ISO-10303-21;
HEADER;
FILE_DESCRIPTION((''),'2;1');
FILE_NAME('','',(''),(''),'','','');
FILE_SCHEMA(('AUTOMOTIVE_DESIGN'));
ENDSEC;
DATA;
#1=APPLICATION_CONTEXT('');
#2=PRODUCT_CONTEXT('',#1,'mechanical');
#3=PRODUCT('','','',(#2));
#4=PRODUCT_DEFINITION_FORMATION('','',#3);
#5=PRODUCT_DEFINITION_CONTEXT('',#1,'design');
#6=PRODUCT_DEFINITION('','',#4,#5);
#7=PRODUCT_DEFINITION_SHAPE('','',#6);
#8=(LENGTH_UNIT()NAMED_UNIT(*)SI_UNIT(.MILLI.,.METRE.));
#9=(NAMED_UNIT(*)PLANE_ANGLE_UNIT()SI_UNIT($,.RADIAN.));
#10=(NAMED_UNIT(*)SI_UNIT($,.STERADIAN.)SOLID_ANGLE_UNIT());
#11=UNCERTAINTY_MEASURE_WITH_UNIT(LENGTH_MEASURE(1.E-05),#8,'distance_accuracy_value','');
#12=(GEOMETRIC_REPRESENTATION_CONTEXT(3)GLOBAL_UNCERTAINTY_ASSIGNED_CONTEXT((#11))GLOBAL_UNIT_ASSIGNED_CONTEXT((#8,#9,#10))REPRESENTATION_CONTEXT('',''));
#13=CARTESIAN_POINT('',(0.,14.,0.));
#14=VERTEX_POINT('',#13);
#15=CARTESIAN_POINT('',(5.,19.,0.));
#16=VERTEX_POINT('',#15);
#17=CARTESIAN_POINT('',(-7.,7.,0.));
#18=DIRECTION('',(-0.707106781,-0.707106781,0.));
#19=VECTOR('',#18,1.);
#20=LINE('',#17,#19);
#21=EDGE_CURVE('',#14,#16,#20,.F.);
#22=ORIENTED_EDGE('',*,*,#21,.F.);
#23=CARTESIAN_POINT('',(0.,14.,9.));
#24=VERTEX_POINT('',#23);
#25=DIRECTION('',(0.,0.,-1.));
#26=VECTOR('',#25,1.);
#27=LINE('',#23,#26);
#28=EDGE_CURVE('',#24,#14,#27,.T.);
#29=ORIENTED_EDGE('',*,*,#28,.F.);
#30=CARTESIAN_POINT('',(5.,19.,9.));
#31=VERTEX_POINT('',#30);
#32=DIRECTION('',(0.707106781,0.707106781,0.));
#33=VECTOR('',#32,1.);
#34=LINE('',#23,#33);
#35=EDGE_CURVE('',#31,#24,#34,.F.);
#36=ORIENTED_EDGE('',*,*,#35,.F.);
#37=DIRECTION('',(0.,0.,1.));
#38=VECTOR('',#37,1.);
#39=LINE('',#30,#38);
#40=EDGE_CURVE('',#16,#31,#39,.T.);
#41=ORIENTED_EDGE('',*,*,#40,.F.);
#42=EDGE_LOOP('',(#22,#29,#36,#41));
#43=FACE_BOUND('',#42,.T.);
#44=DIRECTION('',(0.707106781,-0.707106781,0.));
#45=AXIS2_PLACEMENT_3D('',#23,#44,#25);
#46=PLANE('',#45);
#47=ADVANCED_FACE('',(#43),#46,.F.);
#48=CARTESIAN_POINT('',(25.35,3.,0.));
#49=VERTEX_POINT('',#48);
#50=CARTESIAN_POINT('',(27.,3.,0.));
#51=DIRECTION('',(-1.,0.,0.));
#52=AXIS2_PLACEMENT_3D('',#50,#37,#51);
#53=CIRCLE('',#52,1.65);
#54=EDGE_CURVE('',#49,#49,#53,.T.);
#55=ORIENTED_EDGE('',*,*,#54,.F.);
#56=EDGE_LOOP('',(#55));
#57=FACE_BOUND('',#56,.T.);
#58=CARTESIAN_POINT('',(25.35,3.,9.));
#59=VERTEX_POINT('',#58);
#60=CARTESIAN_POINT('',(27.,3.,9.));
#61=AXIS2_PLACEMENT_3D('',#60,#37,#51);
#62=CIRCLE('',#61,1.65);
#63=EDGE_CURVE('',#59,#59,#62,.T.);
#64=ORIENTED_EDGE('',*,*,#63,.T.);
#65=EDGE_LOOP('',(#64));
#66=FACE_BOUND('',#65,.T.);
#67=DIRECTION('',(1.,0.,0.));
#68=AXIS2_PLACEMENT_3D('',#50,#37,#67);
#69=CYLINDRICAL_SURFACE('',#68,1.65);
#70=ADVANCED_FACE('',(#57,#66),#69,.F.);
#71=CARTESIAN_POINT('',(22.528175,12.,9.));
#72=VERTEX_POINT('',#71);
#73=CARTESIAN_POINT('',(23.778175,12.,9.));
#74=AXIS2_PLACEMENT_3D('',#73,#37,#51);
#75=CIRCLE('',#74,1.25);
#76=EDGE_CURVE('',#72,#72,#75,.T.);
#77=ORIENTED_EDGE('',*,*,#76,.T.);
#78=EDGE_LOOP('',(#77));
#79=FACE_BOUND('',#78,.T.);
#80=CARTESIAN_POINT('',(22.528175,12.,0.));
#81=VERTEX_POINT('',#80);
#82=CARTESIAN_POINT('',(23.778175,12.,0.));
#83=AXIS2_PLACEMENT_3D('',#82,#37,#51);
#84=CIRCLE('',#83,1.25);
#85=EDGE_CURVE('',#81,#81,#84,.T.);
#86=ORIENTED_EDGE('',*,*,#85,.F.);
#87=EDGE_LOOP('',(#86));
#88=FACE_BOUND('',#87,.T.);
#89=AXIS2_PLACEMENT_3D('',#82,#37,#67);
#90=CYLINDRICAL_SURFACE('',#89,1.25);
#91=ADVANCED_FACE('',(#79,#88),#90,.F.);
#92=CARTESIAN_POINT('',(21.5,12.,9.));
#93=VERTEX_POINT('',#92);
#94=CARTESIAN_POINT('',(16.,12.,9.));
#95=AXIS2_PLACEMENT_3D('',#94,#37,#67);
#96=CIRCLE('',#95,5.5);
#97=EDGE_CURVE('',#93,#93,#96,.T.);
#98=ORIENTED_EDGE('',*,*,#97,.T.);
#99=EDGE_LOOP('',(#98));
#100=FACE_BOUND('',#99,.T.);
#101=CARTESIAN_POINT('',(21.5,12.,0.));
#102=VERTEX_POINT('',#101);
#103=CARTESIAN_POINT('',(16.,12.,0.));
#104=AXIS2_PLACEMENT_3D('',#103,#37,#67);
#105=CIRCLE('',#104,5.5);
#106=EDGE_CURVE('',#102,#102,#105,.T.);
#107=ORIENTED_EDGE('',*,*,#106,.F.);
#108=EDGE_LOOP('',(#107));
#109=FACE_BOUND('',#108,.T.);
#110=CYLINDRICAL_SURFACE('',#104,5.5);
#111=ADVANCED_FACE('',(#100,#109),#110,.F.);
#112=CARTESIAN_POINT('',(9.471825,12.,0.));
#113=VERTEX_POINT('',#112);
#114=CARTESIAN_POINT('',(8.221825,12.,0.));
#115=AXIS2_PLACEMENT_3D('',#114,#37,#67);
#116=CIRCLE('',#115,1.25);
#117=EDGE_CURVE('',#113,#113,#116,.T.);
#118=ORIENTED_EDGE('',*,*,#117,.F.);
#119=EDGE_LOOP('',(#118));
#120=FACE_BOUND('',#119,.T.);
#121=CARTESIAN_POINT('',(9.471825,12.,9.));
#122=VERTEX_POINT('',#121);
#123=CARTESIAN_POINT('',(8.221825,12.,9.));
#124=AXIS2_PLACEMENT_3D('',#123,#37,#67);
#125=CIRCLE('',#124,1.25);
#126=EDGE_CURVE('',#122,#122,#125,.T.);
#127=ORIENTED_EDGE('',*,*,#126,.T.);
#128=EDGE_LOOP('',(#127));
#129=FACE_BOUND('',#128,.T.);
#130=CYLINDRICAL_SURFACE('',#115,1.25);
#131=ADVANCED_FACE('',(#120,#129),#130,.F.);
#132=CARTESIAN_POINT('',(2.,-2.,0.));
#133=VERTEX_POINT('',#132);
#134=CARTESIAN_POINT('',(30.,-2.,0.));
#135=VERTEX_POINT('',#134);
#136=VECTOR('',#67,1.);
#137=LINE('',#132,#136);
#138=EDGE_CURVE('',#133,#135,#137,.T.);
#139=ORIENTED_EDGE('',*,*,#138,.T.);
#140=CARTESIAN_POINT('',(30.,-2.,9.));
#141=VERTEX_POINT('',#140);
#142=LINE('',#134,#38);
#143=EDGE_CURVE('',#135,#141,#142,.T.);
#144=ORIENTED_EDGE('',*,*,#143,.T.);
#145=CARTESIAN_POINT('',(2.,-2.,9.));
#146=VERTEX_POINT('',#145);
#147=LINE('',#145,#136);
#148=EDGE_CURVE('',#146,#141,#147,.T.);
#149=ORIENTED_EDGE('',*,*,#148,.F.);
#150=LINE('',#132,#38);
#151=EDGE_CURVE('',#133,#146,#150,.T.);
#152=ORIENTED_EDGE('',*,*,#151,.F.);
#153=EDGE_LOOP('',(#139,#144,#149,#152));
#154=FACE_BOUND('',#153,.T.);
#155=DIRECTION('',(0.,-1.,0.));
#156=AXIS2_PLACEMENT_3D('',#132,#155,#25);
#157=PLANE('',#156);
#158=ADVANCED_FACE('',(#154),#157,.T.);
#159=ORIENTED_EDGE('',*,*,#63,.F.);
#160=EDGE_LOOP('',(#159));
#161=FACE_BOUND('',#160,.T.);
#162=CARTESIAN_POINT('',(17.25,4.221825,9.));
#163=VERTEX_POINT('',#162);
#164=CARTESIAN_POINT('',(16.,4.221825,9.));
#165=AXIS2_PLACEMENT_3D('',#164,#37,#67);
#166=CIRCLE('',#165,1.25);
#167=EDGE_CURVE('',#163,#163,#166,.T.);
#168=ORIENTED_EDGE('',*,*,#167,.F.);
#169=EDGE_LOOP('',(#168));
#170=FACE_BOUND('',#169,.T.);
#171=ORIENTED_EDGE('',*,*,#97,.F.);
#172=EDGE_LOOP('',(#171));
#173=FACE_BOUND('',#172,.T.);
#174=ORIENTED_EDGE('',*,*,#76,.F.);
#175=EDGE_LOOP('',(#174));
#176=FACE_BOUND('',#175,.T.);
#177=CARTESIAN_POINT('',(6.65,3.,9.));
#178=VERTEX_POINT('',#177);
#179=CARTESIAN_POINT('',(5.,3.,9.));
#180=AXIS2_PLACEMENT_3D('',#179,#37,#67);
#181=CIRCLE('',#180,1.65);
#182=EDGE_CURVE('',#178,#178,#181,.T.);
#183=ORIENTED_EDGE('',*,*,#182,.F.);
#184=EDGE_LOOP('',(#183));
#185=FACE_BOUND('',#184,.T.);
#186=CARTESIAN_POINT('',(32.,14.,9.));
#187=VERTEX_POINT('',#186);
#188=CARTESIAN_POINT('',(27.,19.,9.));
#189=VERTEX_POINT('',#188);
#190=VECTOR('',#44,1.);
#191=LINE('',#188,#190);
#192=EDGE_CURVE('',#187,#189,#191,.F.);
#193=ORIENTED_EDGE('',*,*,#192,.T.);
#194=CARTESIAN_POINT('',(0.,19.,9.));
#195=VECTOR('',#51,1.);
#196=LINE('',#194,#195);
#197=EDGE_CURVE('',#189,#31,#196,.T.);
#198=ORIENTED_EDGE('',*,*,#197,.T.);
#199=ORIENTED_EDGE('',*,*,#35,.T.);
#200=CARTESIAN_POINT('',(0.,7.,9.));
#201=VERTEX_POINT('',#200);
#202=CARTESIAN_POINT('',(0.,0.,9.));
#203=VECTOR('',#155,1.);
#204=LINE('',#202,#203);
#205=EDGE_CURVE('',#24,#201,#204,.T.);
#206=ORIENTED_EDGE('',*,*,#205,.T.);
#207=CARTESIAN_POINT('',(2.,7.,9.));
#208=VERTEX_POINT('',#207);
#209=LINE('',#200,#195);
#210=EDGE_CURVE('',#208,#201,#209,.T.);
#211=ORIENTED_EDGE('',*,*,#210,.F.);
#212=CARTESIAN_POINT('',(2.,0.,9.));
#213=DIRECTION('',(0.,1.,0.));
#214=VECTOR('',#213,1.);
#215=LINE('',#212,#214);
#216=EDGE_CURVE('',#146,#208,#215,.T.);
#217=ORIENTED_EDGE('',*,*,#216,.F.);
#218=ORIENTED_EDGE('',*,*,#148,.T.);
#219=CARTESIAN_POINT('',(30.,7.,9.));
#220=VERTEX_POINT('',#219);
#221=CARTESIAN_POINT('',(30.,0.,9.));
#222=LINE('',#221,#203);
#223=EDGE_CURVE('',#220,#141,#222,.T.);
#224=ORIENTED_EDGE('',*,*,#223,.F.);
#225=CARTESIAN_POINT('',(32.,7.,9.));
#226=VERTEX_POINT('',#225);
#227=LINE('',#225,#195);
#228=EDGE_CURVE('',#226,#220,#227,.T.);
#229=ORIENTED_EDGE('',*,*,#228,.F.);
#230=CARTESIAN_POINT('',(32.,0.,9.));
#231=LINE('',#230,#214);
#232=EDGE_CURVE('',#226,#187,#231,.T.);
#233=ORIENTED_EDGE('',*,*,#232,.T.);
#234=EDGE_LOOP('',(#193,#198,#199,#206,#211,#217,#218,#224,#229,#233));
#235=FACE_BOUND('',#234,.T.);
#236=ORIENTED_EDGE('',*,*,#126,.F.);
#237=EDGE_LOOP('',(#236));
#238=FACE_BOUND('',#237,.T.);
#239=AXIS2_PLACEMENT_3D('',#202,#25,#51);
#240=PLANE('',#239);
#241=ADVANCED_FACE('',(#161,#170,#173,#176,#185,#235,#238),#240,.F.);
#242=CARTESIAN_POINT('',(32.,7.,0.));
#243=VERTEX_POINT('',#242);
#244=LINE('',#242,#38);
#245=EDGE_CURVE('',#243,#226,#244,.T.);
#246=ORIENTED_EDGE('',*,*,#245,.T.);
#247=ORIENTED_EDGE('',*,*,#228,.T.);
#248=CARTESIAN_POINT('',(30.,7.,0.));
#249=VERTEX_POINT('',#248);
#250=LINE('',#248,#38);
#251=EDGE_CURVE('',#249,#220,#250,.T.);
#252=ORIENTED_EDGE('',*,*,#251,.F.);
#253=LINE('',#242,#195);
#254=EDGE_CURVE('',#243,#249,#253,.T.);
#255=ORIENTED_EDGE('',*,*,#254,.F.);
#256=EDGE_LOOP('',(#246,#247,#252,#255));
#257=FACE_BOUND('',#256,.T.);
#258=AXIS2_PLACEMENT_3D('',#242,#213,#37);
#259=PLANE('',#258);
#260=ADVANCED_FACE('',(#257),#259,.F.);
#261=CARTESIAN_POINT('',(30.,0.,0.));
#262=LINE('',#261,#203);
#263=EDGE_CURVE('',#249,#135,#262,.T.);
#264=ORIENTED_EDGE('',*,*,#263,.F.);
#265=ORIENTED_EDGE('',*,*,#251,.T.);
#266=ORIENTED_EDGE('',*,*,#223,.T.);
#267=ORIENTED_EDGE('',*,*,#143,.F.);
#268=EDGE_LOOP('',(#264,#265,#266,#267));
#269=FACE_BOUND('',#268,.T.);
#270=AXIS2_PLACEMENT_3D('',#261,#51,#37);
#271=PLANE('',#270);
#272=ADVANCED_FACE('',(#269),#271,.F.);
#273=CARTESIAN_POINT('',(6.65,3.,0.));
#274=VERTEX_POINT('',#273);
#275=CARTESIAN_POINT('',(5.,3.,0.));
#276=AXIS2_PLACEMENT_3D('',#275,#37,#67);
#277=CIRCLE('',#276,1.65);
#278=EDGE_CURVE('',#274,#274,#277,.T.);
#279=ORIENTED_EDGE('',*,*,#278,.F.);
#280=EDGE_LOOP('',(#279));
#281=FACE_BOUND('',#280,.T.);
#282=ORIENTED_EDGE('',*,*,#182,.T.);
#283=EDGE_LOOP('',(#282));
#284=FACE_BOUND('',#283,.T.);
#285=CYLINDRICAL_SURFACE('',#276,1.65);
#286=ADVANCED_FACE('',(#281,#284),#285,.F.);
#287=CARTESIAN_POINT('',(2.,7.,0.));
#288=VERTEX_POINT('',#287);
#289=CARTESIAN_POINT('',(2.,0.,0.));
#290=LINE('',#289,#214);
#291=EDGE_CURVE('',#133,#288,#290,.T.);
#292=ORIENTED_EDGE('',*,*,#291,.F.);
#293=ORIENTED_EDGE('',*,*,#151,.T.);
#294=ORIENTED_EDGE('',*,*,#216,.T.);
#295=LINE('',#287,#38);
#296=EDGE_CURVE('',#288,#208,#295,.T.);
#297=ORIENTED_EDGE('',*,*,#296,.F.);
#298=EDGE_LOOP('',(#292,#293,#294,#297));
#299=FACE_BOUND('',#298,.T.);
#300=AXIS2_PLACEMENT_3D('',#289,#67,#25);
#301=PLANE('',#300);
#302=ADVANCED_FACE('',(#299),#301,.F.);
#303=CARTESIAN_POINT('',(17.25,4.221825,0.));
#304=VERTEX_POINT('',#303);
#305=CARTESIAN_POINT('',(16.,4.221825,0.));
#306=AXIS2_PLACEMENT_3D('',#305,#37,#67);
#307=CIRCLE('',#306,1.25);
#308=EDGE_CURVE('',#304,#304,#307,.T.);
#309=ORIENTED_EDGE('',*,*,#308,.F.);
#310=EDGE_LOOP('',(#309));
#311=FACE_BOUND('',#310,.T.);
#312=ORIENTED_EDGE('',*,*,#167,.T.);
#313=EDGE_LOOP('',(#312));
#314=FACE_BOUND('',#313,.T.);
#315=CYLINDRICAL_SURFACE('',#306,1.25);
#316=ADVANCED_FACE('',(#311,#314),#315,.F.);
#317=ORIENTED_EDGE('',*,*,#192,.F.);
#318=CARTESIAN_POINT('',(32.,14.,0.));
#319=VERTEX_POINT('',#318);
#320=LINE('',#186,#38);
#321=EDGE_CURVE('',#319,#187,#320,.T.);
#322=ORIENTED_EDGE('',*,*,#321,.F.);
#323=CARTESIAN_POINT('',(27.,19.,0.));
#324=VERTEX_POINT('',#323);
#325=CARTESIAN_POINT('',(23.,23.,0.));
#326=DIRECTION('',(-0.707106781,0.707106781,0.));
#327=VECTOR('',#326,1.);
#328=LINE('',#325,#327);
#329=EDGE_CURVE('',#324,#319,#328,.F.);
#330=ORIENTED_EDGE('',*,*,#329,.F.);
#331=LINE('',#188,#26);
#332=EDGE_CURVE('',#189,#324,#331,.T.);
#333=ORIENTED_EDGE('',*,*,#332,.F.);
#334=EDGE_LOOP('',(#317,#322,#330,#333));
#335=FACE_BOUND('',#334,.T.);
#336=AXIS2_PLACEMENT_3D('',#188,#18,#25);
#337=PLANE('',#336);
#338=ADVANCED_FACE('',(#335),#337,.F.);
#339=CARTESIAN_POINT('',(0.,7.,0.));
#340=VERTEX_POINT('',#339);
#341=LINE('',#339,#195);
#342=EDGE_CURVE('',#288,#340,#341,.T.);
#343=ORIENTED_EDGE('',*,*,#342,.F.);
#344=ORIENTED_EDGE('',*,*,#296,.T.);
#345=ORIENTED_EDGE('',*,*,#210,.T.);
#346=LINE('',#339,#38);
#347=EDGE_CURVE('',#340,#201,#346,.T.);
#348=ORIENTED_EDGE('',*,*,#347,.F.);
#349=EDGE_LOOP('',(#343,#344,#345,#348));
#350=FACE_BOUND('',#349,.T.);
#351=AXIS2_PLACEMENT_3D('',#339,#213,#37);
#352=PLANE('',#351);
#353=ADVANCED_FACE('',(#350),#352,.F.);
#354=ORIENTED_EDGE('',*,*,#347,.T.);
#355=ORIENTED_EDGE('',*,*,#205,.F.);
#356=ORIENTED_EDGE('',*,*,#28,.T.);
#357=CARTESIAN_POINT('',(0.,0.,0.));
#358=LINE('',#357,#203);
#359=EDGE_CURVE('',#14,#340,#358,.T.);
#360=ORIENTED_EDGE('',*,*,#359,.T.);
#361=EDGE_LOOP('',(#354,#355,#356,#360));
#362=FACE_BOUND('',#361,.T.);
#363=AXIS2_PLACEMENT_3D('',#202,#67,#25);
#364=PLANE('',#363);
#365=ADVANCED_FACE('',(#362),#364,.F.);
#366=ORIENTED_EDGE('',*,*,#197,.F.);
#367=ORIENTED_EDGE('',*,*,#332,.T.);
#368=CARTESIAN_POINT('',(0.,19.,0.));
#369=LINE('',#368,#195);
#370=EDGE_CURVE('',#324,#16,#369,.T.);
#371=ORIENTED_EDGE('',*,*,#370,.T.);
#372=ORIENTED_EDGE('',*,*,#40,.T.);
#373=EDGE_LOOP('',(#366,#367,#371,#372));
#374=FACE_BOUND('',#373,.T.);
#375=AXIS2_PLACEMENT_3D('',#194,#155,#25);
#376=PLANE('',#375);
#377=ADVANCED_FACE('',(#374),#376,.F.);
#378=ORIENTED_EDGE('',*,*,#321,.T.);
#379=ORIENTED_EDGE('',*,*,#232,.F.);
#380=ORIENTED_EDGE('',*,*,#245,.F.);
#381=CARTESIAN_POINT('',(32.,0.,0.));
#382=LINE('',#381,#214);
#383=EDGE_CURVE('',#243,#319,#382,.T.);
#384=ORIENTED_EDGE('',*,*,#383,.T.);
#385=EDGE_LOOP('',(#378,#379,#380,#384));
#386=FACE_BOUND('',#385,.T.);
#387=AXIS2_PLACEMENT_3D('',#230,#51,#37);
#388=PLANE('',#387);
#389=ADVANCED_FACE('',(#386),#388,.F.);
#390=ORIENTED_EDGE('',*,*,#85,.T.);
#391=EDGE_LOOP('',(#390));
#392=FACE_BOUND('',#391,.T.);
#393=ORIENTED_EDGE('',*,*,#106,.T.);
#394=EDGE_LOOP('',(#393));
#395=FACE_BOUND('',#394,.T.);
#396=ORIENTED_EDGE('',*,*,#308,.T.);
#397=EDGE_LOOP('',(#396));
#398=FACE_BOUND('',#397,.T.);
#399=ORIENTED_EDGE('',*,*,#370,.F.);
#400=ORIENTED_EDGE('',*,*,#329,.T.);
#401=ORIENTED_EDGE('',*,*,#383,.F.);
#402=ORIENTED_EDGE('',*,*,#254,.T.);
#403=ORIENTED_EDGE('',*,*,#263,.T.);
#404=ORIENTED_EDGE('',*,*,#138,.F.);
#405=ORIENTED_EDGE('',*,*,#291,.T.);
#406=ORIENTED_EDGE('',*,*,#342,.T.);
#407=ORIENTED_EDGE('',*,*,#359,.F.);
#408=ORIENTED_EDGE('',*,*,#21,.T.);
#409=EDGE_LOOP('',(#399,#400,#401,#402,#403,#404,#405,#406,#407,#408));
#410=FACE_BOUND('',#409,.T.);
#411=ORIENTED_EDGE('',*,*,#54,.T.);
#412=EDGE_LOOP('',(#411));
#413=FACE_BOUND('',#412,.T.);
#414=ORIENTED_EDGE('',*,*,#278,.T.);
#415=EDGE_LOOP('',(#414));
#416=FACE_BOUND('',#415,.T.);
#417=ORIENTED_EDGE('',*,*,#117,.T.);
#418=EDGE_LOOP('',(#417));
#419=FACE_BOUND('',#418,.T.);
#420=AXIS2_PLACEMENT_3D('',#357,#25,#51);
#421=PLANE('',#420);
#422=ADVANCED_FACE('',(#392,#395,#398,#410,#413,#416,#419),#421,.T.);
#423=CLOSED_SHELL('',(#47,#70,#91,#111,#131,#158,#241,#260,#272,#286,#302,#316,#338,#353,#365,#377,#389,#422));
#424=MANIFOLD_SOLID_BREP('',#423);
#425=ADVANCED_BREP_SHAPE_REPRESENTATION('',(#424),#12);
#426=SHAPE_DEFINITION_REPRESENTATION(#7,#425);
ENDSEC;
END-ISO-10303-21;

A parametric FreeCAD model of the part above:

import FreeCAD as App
import Part
import Sketcher
from FreeCAD import Vector


def edges_at(feature, points):
    """Names of the edges that pass closest to the given points."""
    edges = feature.Shape.Edges
    near = lambda p: min(range(len(edges)), key=lambda i: edges[i].distToShape(Part.Vertex(*p))[0])
    return sorted({f"Edge{near(p) + 1}" for p in points})


def add_polygon(sketch, points):
    """Adds a closed chain of lines whose ends are joined by coincident constraints."""
    first, n = sketch.GeometryCount, len(points)
    for a, b in zip(points, points[1:] + points[:1]):
        sketch.addGeometry(Part.LineSegment(App.Vector(*a, 0), App.Vector(*b, 0)), False)
    for i in range(n):
        sketch.addConstraint(Sketcher.Constraint("Coincident", first + i, 2, first + (i + 1) % n, 1))

doc = App.newDocument("Part")
body = doc.addObject("PartDesign::Body", "Body")

sketch1 = body.newObject("Sketcher::SketchObject", "Sketch")
sketch1.AttachmentSupport = (doc.getObject("XY_Plane"), [""])
sketch1.MapMode = "FlatFace"
add_polygon(sketch1, [(0, 19), (0, 0), (32, 0), (32, 19)])
sketch1.addConstraint([
    Sketcher.Constraint("Vertical", 0),
    Sketcher.Constraint("Horizontal", 1),
    Sketcher.Constraint("Vertical", 2),
    Sketcher.Constraint("Horizontal", 3),
    Sketcher.Constraint("Coincident", 0, 2, -1, 1),
    Sketcher.Constraint("DistanceX", 1, 1, 1, 2, 32.0),
    Sketcher.Constraint("DistanceY", 0, 2, 0, 1, 19.0),
])
pad1 = body.newObject("PartDesign::Pad", "Pad")
pad1.Profile = sketch1
pad1.Length = 9

sketch2 = body.newObject("Sketcher::SketchObject", "Sketch001")
sketch2.AttachmentSupport = (doc.getObject("XY_Plane"), [""])
sketch2.MapMode = "FlatFace"
sketch2.AttachmentOffset = App.Placement(Vector(0, 0, 9), App.Rotation())
sketch2.addGeometry([
    Part.Circle(Vector(16, 12, 0), Vector(0, 0, 1), 5.5),
    Part.Circle(Vector(8.2, 12, 0), Vector(0, 0, 1), 1.2),
    Part.Circle(Vector(23.8, 12, 0), Vector(0, 0, 1), 1.2),
    Part.Circle(Vector(16, 4.2, 0), Vector(0, 0, 1), 1.2),
    Part.Circle(Vector(5, 3, 0), Vector(0, 0, 1), 1.6),
    Part.Circle(Vector(27, 3, 0), Vector(0, 0, 1), 1.6),
], False)
sketch2.addConstraint([
    Sketcher.Constraint("Equal", 1, 2),
    Sketcher.Constraint("Equal", 2, 3),
    Sketcher.Constraint("Equal", 4, 5),
    Sketcher.Constraint("Horizontal", 0, 3, 1, 3),
    Sketcher.Constraint("Horizontal", 1, 3, 2, 3),
    Sketcher.Constraint("Horizontal", 4, 3, 5, 3),
    Sketcher.Constraint("Vertical", 0, 3, 3, 3),
    Sketcher.Constraint("Diameter", 0, 11.0),
    Sketcher.Constraint("Diameter", 1, 2.5),
    Sketcher.Constraint("Diameter", 4, 3.3),
    Sketcher.Constraint("DistanceX", -1, 1, 0, 3, 16.0),
    Sketcher.Constraint("DistanceY", -1, 1, 0, 3, 12.0),
    Sketcher.Constraint("DistanceX", -1, 1, 4, 3, 5.0),
    Sketcher.Constraint("DistanceY", -1, 1, 4, 3, 3.0),
    Sketcher.Constraint("DistanceX", -1, 1, 5, 3, 27.0),
    Sketcher.Constraint("DistanceX", 1, 3, 2, 3, 15.556349),
    Sketcher.Constraint("DistanceX", -1, 1, 1, 3, 8.221825),
    Sketcher.Constraint("DistanceY", -1, 1, 3, 3, 4.221825),
])
pocket1 = body.newObject("PartDesign::Pocket", "Pocket")
pocket1.Profile = sketch2
pocket1.Type = "ThroughAll"

sketch3 = body.newObject("Sketcher::SketchObject", "Sketch002")
sketch3.AttachmentSupport = (doc.getObject("XY_Plane"), [""])
sketch3.MapMode = "FlatFace"
sketch3.AttachmentOffset = App.Placement(Vector(0, 0, 9), App.Rotation())
add_polygon(sketch3, [(0, 7), (0, 0), (2, 0), (2, 7)])
add_polygon(sketch3, [(30, 7), (30, 0), (32, 0), (32, 7)])
sketch3.addConstraint([
    Sketcher.Constraint("Vertical", 0),
    Sketcher.Constraint("Horizontal", 1),
    Sketcher.Constraint("Vertical", 2),
    Sketcher.Constraint("Horizontal", 3),
    Sketcher.Constraint("Vertical", 4),
    Sketcher.Constraint("Horizontal", 5),
    Sketcher.Constraint("Vertical", 6),
    Sketcher.Constraint("Horizontal", 7),
    Sketcher.Constraint("Coincident", 0, 2, -1, 1),
    Sketcher.Constraint("PointOnObject", 4, 2, -1),
    Sketcher.Constraint("Horizontal", 3, 2, 6, 2),
    Sketcher.Constraint("Equal", 3, 5),
    Sketcher.Constraint("DistanceX", 1, 1, 1, 2, 2.0),
    Sketcher.Constraint("DistanceY", 0, 2, 0, 1, 7.0),
    Sketcher.Constraint("DistanceX", -1, 1, 4, 2, 30.0),
])
pocket2 = body.newObject("PartDesign::Pocket", "Pocket001")
pocket2.Profile = sketch3
pocket2.Type = "ThroughAll"

sketch4 = body.newObject("Sketcher::SketchObject", "Sketch003")
sketch4.AttachmentSupport = (doc.getObject("XY_Plane"), [""])
sketch4.MapMode = "FlatFace"
sketch4.AttachmentOffset = App.Placement(Vector(0, 0, 9), App.Rotation())
add_polygon(sketch4, [(2, 0), (2, -2), (30, -2), (30, 0)])
sketch4.addConstraint([
    Sketcher.Constraint("Vertical", 0),
    Sketcher.Constraint("Horizontal", 1),
    Sketcher.Constraint("Vertical", 2),
    Sketcher.Constraint("Horizontal", 3),
    Sketcher.Constraint("PointOnObject", 2, 2, -1),
    Sketcher.Constraint("DistanceX", 1, 1, 1, 2, 28.0),
    Sketcher.Constraint("DistanceY", 0, 2, 0, 1, 2.0),
    Sketcher.Constraint("DistanceX", -1, 1, 0, 2, 2.0),
])
pad2 = body.newObject("PartDesign::Pad", "Pad001")
pad2.Profile = sketch4
pad2.Length = 9
pad2.Reversed = True
doc.recompute()

chamfer = body.newObject("PartDesign::Chamfer", "Chamfer")
chamfer.Base = (pad2, edges_at(pad2, [(0, 19, 4.5), (32, 19, 4.5)]))
chamfer.Size = 5

doc.recompute()
